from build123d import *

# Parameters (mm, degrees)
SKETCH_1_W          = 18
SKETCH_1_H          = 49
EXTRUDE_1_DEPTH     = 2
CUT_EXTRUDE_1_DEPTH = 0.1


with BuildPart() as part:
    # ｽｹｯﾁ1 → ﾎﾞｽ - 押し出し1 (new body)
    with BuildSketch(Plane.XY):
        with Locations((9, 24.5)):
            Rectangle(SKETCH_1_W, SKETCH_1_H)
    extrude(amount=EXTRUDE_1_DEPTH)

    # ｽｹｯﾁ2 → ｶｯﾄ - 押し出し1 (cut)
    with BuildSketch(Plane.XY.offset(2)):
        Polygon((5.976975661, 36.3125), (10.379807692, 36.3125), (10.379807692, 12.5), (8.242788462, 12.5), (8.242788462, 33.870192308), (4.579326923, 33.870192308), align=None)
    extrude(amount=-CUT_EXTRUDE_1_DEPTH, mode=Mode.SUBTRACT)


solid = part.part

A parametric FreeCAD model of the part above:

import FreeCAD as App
import Part
import Sketcher
from FreeCAD import Vector


def add_polygon(sketch, points):
    """Adds a closed chain of lines whose ends are joined by coincident constraints."""
    first, n = sketch.GeometryCount, len(points)
    for a, b in zip(points, points[1:] + points[:1]):
        sketch.addGeometry(Part.LineSegment(App.Vector(*a, 0), App.Vector(*b, 0)), False)
    for i in range(n):
        sketch.addConstraint(Sketcher.Constraint("Coincident", first + i, 2, first + (i + 1) % n, 1))

doc = App.newDocument("Part")
body = doc.addObject("PartDesign::Body", "Body")

sketch1 = body.newObject("Sketcher::SketchObject", "Sketch")
sketch1.AttachmentSupport = (doc.getObject("XY_Plane"), [""])
sketch1.MapMode = "FlatFace"
add_polygon(sketch1, [(0, 49), (0, 0), (18, 0), (18, 49)])
sketch1.addConstraint([
    Sketcher.Constraint("Vertical", 0),
    Sketcher.Constraint("Horizontal", 1),
    Sketcher.Constraint("Vertical", 2),
    Sketcher.Constraint("Horizontal", 3),
    Sketcher.Constraint("Coincident", 0, 2, -1, 1),
    Sketcher.Constraint("DistanceX", 1, 1, 1, 2, 18.0),
    Sketcher.Constraint("DistanceY", 0, 2, 0, 1, 49.0),
])
pad1 = body.newObject("PartDesign::Pad", "Pad")
pad1.Profile = sketch1
pad1.Length = 2

sketch2 = body.newObject("Sketcher::SketchObject", "Sketch001")
sketch2.AttachmentSupport = (doc.getObject("XY_Plane"), [""])
sketch2.MapMode = "FlatFace"
sketch2.AttachmentOffset = App.Placement(Vector(0, 0, 2), App.Rotation())
add_polygon(sketch2, [(10.4, 36.3), (6, 36.3), (4.6, 33.9), (8.2, 33.9), (8.2, 12.5), (10.4, 12.5)])
sketch2.addConstraint([
    Sketcher.Constraint("Horizontal", 0),
    Sketcher.Constraint("Horizontal", 2),
    Sketcher.Constraint("Vertical", 3),
    Sketcher.Constraint("Horizontal", 4),
    Sketcher.Constraint("Vertical", 5),
    Sketcher.Constraint("DistanceY", -1, 1, 3, 2, 12.5),
    Sketcher.Constraint("DistanceY", 5, 1, 5, 2, 23.8125),
    Sketcher.Constraint("DistanceX", 2, 1, 2, 2, 3.663462),
    Sketcher.Constraint("DistanceX", 4, 1, 4, 2, 2.137019),
    Sketcher.Constraint("DistanceX", 0, 2, 0, 1, 4.402832),
    Sketcher.Constraint("DistanceY", 3, 2, 3, 1, 21.370192),
    Sketcher.Constraint("DistanceX", -1, 1, 2, 2, 8.242788),
])
pocket1 = body.newObject("PartDesign::Pocket", "Pocket")
pocket1.Profile = sketch2
pocket1.Length = 0.1

doc.recompute()
